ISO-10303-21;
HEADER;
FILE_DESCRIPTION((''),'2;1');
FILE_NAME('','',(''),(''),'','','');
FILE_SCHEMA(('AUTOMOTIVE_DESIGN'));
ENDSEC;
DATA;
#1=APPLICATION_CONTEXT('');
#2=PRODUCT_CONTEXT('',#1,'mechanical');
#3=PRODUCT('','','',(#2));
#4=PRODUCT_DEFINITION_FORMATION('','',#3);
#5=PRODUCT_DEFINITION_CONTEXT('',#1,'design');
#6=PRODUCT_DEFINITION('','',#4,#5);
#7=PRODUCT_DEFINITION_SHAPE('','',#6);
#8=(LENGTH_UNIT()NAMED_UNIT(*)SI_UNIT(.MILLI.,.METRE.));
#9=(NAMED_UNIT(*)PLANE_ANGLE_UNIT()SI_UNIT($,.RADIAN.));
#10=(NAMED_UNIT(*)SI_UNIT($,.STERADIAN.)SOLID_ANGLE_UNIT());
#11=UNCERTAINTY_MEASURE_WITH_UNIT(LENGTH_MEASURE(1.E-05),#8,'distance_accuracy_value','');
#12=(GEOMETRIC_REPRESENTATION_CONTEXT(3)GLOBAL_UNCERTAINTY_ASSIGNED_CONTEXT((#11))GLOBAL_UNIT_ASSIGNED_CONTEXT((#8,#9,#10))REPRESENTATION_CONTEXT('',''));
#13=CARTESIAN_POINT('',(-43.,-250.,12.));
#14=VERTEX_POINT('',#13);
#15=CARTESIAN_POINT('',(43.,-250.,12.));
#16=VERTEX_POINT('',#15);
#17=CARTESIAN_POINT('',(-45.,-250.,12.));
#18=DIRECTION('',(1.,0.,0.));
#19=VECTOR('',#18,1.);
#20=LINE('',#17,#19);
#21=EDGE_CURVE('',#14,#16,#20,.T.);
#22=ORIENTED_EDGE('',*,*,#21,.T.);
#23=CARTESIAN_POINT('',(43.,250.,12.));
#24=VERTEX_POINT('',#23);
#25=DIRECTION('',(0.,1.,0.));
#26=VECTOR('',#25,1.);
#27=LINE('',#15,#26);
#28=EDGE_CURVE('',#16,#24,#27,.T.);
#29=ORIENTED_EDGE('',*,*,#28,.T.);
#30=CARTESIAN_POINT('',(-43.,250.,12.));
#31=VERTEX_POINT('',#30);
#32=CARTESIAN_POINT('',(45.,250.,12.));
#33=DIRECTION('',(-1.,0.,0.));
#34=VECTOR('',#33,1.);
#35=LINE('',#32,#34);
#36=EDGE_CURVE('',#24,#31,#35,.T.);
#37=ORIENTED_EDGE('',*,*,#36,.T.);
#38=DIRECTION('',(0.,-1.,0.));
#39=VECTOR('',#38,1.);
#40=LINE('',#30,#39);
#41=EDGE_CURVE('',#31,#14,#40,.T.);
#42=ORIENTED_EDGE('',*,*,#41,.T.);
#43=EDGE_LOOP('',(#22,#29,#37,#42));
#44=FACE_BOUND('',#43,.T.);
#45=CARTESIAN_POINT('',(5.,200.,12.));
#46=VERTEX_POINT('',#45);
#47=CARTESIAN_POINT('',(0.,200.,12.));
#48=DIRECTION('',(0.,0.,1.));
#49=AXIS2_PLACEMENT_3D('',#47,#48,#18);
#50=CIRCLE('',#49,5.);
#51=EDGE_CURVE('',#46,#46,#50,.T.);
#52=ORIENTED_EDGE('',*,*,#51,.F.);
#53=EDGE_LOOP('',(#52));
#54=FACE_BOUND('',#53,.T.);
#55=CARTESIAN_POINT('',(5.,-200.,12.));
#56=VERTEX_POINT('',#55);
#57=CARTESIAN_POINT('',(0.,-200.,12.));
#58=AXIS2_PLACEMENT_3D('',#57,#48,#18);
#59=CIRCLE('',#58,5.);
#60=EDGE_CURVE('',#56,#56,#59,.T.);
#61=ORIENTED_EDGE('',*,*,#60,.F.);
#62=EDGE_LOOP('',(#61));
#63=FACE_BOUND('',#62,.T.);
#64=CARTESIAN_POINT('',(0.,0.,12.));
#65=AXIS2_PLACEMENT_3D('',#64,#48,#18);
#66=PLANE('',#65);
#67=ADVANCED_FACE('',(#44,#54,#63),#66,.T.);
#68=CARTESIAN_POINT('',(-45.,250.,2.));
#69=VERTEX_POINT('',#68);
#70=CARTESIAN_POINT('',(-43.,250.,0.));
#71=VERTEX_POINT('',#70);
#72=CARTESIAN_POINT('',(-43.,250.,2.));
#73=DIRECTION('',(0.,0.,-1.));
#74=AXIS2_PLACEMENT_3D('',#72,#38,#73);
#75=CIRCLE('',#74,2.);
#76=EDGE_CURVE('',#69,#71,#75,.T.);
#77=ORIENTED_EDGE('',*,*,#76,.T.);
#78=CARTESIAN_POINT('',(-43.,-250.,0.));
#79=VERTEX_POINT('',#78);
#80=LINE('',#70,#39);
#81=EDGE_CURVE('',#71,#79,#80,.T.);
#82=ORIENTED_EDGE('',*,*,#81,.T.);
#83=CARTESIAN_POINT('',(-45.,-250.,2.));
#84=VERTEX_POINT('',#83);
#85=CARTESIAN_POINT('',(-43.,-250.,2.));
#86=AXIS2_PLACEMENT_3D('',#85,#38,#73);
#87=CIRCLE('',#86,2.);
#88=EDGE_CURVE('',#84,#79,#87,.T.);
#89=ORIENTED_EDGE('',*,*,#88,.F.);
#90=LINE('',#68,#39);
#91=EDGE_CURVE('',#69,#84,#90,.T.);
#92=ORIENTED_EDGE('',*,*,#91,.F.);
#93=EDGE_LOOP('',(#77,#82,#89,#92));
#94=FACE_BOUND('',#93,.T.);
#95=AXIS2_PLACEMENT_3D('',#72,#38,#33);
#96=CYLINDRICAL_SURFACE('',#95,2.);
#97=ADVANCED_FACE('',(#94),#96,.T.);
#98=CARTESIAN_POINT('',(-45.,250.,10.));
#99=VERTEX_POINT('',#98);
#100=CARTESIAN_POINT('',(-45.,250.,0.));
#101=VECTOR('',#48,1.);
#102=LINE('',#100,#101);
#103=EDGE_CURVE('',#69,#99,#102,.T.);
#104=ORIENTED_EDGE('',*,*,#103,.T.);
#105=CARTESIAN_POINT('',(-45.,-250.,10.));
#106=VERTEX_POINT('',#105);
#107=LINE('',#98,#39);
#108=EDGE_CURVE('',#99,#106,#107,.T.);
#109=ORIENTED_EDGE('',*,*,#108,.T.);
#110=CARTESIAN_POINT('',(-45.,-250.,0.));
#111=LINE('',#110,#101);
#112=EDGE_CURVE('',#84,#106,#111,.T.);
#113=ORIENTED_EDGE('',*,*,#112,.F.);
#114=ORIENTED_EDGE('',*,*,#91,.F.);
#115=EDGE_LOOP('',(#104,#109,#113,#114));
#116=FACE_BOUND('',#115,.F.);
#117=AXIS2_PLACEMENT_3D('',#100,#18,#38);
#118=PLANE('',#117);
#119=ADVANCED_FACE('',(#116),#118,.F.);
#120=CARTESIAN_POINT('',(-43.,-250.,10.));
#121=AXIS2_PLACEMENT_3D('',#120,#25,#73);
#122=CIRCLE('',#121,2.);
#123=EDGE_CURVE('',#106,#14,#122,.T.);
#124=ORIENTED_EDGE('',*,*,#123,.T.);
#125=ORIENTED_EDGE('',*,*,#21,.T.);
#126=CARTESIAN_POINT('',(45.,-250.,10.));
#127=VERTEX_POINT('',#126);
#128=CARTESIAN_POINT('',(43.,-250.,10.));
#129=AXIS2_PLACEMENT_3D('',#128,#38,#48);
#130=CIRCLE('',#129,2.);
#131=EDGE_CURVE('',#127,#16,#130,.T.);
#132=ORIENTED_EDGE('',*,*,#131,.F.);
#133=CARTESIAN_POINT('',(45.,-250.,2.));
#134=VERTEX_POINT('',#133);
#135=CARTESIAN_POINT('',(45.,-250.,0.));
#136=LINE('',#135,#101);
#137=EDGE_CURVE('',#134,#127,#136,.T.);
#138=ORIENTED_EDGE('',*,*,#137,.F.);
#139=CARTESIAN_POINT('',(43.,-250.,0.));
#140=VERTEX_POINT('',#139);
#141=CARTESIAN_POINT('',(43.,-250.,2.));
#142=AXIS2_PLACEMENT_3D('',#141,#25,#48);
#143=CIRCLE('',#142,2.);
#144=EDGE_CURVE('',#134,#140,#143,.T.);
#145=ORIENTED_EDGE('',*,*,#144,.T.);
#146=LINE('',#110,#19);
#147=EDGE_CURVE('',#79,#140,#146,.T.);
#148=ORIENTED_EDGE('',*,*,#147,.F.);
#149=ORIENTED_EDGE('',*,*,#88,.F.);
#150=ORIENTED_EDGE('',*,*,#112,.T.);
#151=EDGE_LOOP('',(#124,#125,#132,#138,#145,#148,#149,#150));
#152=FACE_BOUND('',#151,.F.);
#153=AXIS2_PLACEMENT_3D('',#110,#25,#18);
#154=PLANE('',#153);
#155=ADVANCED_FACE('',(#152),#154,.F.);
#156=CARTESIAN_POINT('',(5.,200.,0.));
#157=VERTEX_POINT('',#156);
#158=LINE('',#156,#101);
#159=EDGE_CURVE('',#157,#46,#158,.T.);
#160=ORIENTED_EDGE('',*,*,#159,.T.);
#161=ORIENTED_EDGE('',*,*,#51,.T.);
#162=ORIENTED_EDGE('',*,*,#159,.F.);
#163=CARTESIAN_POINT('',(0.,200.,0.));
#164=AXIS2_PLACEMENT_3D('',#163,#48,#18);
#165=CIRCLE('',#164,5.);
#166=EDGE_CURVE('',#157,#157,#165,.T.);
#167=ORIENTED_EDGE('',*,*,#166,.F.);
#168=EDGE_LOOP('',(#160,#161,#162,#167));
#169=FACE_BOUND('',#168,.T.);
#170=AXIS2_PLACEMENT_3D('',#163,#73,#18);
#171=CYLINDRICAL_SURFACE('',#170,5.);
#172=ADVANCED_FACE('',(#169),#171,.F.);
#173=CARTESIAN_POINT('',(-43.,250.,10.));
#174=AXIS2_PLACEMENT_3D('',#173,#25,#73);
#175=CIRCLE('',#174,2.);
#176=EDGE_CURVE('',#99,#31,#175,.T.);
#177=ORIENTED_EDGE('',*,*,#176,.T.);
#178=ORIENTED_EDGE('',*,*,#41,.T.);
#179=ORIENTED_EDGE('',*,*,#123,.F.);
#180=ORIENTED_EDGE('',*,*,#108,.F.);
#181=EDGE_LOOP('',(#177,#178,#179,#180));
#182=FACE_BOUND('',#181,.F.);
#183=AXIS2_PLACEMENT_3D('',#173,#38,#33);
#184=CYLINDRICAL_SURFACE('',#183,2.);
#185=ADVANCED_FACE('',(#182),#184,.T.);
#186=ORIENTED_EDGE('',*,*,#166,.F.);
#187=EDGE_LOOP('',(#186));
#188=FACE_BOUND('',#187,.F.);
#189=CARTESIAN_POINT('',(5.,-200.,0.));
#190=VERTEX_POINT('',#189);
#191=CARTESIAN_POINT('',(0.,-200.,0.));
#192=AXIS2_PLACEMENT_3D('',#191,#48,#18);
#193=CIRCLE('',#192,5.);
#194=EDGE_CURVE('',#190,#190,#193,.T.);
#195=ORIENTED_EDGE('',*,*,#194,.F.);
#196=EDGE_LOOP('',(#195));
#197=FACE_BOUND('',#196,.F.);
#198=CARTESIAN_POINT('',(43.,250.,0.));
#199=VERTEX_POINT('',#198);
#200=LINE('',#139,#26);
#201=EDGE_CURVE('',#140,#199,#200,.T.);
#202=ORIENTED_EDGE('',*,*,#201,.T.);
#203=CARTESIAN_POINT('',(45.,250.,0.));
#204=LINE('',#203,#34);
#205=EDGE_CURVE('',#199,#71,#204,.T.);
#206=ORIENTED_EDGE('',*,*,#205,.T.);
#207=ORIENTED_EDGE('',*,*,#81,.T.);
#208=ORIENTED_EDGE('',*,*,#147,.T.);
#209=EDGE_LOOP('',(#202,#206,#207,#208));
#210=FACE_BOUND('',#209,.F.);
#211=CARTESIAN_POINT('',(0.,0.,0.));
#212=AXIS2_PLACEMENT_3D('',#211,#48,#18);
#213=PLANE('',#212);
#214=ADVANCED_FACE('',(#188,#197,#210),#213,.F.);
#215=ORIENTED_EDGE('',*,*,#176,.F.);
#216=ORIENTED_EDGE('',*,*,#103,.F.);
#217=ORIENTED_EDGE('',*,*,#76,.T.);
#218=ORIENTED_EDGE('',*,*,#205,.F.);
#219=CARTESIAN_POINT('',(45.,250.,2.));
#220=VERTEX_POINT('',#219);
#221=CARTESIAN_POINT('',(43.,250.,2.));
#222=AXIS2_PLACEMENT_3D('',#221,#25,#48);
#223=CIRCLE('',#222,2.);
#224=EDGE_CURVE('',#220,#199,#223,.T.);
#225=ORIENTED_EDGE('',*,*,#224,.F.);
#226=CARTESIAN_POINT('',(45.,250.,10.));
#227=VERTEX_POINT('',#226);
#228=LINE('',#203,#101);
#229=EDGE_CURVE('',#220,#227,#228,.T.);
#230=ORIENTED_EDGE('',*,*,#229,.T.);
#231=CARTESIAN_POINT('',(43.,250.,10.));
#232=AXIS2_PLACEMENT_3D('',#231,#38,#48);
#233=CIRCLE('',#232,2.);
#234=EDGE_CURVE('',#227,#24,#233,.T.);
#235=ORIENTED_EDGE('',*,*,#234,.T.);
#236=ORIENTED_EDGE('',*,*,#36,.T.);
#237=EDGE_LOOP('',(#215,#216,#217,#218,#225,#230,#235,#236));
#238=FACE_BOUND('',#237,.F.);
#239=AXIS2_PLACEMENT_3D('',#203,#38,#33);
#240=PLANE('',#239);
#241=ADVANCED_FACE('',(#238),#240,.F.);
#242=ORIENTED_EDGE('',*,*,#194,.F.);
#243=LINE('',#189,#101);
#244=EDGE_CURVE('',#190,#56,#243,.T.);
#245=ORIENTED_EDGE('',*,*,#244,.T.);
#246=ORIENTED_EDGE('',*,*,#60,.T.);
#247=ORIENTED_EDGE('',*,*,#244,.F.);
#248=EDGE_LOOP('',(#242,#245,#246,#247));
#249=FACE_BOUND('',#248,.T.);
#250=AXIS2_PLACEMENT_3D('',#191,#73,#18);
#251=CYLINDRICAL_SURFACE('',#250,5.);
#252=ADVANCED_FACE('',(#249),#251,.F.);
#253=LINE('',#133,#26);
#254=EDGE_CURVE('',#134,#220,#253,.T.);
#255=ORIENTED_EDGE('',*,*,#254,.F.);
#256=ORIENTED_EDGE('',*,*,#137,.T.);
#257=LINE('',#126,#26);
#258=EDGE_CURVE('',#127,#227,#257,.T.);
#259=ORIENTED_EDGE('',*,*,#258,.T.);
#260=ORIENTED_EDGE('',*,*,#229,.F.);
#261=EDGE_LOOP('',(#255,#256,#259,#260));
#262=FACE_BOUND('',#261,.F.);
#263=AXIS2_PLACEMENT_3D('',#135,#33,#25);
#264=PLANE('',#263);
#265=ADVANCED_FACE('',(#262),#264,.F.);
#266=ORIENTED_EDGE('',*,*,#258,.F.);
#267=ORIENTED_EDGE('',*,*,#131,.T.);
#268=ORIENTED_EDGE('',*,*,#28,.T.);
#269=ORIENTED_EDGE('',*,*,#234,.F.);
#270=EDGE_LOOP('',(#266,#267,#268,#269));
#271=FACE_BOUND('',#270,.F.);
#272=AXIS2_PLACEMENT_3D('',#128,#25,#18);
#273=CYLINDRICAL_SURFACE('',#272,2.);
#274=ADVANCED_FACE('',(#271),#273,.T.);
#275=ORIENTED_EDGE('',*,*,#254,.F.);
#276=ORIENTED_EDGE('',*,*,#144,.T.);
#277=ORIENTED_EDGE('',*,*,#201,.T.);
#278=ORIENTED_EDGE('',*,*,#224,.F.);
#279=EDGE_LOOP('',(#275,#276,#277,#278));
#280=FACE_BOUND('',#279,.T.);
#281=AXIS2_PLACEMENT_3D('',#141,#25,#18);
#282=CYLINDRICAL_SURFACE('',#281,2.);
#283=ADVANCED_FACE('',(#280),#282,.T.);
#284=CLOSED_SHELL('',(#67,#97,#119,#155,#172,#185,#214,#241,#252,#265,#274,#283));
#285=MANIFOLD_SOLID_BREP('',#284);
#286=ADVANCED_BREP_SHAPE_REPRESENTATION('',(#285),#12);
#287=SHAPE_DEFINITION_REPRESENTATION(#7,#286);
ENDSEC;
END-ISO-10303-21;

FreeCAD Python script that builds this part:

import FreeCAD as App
import Part
import Sketcher

V = App.Vector


def edges_at(feature, points):
    """Names of the edges that pass closest to the given points."""
    edges = feature.Shape.Edges
    near = lambda p: min(range(len(edges)), key=lambda i: edges[i].distToShape(Part.Vertex(*p))[0])
    return sorted({f"Edge{near(p) + 1}" for p in points})

doc = App.newDocument("Part")
params = doc.addObject("Spreadsheet::Sheet", "Params")
for row, (alias, value) in enumerate([
    ("sketch1_diameter", "10 mm"),
    ("sketch1_width", "90 mm"),
    ("sketch1_height", "500 mm"),
    ("pad1_length", "12 mm"),
    ("fillet_radius", "2 mm"),
], start=1):
    params.set(f"A{row}", alias)
    params.set(f"B{row}", "=" + value)
    params.setAlias(f"B{row}", alias)

body = doc.addObject("PartDesign::Body", "Body")

# Sketch on XY plane
sketch1 = body.newObject("Sketcher::SketchObject", "Sketch")
sketch1.AttachmentSupport = (doc.getObject("XY_Plane"), [""])
sketch1.MapMode = "FlatFace"
sketch1.addGeometry(Part.LineSegment(V(-45, 250, 0), V(-45, -250, 0)), False)
sketch1.addGeometry(Part.LineSegment(V(-45, -250, 0), V(45, -250, 0)), False)
sketch1.addGeometry(Part.LineSegment(V(45, -250, 0), V(45, 250, 0)), False)
sketch1.addGeometry(Part.LineSegment(V(45, 250, 0), V(-45, 250, 0)), False)
sketch1.addGeometry(Part.Circle(V(0, -200, 0), V(0, 0, 1), 5), False)
sketch1.addGeometry(Part.Circle(V(0, 200, 0), V(0, 0, 1), 5), False)
sketch1.addConstraint(Sketcher.Constraint("Coincident", 0, 2, 1, 1))
sketch1.addConstraint(Sketcher.Constraint("Coincident", 1, 2, 2, 1))
sketch1.addConstraint(Sketcher.Constraint("Coincident", 2, 2, 3, 1))
sketch1.addConstraint(Sketcher.Constraint("Coincident", 3, 2, 0, 1))
sketch1.addConstraint(Sketcher.Constraint("Vertical", 0))
sketch1.addConstraint(Sketcher.Constraint("Horizontal", 1))
sketch1.addConstraint(Sketcher.Constraint("Vertical", 2))
sketch1.addConstraint(Sketcher.Constraint("Horizontal", 3))
sketch1.addConstraint(Sketcher.Constraint("Equal", 4, 5))
sketch1.addConstraint(Sketcher.Constraint("Symmetric", 4, 3, 5, 3, -1, 1))
sketch1.addConstraint(Sketcher.Constraint("Symmetric", 0, 2, 2, 2, -1, 1))
sketch1.addConstraint(Sketcher.Constraint("PointOnObject", 4, 3, -2))
sketch1.addConstraint(Sketcher.Constraint("Diameter", 4, 10.0))
sketch1.addConstraint(Sketcher.Constraint("DistanceX", 1, 1, 1, 2, 90.0))
sketch1.addConstraint(Sketcher.Constraint("DistanceY", 0, 2, 0, 1, 500.0))
sketch1.addConstraint(Sketcher.Constraint("DistanceY", 4, 3, -1, 1, 200.0))
sketch1.setExpression("Constraints[12]", "Params.sketch1_diameter")
sketch1.setExpression("Constraints[13]", "Params.sketch1_width")
sketch1.setExpression("Constraints[14]", "Params.sketch1_height")
pad1 = body.newObject("PartDesign::Pad", "Pad")
pad1.Profile = sketch1
pad1.setExpression("Length", "Params.pad1_length")
doc.recompute()

fillet = body.newObject("PartDesign::Fillet", "Fillet")
fillet.Base = (pad1, edges_at(pad1, [
    (-45, 0, 12),
    (-45, 0, 0),
    (45, 0, 12),
    (45, 0, 0),
]))
fillet.setExpression("Radius", "Params.fillet_radius")

doc.recompute()
